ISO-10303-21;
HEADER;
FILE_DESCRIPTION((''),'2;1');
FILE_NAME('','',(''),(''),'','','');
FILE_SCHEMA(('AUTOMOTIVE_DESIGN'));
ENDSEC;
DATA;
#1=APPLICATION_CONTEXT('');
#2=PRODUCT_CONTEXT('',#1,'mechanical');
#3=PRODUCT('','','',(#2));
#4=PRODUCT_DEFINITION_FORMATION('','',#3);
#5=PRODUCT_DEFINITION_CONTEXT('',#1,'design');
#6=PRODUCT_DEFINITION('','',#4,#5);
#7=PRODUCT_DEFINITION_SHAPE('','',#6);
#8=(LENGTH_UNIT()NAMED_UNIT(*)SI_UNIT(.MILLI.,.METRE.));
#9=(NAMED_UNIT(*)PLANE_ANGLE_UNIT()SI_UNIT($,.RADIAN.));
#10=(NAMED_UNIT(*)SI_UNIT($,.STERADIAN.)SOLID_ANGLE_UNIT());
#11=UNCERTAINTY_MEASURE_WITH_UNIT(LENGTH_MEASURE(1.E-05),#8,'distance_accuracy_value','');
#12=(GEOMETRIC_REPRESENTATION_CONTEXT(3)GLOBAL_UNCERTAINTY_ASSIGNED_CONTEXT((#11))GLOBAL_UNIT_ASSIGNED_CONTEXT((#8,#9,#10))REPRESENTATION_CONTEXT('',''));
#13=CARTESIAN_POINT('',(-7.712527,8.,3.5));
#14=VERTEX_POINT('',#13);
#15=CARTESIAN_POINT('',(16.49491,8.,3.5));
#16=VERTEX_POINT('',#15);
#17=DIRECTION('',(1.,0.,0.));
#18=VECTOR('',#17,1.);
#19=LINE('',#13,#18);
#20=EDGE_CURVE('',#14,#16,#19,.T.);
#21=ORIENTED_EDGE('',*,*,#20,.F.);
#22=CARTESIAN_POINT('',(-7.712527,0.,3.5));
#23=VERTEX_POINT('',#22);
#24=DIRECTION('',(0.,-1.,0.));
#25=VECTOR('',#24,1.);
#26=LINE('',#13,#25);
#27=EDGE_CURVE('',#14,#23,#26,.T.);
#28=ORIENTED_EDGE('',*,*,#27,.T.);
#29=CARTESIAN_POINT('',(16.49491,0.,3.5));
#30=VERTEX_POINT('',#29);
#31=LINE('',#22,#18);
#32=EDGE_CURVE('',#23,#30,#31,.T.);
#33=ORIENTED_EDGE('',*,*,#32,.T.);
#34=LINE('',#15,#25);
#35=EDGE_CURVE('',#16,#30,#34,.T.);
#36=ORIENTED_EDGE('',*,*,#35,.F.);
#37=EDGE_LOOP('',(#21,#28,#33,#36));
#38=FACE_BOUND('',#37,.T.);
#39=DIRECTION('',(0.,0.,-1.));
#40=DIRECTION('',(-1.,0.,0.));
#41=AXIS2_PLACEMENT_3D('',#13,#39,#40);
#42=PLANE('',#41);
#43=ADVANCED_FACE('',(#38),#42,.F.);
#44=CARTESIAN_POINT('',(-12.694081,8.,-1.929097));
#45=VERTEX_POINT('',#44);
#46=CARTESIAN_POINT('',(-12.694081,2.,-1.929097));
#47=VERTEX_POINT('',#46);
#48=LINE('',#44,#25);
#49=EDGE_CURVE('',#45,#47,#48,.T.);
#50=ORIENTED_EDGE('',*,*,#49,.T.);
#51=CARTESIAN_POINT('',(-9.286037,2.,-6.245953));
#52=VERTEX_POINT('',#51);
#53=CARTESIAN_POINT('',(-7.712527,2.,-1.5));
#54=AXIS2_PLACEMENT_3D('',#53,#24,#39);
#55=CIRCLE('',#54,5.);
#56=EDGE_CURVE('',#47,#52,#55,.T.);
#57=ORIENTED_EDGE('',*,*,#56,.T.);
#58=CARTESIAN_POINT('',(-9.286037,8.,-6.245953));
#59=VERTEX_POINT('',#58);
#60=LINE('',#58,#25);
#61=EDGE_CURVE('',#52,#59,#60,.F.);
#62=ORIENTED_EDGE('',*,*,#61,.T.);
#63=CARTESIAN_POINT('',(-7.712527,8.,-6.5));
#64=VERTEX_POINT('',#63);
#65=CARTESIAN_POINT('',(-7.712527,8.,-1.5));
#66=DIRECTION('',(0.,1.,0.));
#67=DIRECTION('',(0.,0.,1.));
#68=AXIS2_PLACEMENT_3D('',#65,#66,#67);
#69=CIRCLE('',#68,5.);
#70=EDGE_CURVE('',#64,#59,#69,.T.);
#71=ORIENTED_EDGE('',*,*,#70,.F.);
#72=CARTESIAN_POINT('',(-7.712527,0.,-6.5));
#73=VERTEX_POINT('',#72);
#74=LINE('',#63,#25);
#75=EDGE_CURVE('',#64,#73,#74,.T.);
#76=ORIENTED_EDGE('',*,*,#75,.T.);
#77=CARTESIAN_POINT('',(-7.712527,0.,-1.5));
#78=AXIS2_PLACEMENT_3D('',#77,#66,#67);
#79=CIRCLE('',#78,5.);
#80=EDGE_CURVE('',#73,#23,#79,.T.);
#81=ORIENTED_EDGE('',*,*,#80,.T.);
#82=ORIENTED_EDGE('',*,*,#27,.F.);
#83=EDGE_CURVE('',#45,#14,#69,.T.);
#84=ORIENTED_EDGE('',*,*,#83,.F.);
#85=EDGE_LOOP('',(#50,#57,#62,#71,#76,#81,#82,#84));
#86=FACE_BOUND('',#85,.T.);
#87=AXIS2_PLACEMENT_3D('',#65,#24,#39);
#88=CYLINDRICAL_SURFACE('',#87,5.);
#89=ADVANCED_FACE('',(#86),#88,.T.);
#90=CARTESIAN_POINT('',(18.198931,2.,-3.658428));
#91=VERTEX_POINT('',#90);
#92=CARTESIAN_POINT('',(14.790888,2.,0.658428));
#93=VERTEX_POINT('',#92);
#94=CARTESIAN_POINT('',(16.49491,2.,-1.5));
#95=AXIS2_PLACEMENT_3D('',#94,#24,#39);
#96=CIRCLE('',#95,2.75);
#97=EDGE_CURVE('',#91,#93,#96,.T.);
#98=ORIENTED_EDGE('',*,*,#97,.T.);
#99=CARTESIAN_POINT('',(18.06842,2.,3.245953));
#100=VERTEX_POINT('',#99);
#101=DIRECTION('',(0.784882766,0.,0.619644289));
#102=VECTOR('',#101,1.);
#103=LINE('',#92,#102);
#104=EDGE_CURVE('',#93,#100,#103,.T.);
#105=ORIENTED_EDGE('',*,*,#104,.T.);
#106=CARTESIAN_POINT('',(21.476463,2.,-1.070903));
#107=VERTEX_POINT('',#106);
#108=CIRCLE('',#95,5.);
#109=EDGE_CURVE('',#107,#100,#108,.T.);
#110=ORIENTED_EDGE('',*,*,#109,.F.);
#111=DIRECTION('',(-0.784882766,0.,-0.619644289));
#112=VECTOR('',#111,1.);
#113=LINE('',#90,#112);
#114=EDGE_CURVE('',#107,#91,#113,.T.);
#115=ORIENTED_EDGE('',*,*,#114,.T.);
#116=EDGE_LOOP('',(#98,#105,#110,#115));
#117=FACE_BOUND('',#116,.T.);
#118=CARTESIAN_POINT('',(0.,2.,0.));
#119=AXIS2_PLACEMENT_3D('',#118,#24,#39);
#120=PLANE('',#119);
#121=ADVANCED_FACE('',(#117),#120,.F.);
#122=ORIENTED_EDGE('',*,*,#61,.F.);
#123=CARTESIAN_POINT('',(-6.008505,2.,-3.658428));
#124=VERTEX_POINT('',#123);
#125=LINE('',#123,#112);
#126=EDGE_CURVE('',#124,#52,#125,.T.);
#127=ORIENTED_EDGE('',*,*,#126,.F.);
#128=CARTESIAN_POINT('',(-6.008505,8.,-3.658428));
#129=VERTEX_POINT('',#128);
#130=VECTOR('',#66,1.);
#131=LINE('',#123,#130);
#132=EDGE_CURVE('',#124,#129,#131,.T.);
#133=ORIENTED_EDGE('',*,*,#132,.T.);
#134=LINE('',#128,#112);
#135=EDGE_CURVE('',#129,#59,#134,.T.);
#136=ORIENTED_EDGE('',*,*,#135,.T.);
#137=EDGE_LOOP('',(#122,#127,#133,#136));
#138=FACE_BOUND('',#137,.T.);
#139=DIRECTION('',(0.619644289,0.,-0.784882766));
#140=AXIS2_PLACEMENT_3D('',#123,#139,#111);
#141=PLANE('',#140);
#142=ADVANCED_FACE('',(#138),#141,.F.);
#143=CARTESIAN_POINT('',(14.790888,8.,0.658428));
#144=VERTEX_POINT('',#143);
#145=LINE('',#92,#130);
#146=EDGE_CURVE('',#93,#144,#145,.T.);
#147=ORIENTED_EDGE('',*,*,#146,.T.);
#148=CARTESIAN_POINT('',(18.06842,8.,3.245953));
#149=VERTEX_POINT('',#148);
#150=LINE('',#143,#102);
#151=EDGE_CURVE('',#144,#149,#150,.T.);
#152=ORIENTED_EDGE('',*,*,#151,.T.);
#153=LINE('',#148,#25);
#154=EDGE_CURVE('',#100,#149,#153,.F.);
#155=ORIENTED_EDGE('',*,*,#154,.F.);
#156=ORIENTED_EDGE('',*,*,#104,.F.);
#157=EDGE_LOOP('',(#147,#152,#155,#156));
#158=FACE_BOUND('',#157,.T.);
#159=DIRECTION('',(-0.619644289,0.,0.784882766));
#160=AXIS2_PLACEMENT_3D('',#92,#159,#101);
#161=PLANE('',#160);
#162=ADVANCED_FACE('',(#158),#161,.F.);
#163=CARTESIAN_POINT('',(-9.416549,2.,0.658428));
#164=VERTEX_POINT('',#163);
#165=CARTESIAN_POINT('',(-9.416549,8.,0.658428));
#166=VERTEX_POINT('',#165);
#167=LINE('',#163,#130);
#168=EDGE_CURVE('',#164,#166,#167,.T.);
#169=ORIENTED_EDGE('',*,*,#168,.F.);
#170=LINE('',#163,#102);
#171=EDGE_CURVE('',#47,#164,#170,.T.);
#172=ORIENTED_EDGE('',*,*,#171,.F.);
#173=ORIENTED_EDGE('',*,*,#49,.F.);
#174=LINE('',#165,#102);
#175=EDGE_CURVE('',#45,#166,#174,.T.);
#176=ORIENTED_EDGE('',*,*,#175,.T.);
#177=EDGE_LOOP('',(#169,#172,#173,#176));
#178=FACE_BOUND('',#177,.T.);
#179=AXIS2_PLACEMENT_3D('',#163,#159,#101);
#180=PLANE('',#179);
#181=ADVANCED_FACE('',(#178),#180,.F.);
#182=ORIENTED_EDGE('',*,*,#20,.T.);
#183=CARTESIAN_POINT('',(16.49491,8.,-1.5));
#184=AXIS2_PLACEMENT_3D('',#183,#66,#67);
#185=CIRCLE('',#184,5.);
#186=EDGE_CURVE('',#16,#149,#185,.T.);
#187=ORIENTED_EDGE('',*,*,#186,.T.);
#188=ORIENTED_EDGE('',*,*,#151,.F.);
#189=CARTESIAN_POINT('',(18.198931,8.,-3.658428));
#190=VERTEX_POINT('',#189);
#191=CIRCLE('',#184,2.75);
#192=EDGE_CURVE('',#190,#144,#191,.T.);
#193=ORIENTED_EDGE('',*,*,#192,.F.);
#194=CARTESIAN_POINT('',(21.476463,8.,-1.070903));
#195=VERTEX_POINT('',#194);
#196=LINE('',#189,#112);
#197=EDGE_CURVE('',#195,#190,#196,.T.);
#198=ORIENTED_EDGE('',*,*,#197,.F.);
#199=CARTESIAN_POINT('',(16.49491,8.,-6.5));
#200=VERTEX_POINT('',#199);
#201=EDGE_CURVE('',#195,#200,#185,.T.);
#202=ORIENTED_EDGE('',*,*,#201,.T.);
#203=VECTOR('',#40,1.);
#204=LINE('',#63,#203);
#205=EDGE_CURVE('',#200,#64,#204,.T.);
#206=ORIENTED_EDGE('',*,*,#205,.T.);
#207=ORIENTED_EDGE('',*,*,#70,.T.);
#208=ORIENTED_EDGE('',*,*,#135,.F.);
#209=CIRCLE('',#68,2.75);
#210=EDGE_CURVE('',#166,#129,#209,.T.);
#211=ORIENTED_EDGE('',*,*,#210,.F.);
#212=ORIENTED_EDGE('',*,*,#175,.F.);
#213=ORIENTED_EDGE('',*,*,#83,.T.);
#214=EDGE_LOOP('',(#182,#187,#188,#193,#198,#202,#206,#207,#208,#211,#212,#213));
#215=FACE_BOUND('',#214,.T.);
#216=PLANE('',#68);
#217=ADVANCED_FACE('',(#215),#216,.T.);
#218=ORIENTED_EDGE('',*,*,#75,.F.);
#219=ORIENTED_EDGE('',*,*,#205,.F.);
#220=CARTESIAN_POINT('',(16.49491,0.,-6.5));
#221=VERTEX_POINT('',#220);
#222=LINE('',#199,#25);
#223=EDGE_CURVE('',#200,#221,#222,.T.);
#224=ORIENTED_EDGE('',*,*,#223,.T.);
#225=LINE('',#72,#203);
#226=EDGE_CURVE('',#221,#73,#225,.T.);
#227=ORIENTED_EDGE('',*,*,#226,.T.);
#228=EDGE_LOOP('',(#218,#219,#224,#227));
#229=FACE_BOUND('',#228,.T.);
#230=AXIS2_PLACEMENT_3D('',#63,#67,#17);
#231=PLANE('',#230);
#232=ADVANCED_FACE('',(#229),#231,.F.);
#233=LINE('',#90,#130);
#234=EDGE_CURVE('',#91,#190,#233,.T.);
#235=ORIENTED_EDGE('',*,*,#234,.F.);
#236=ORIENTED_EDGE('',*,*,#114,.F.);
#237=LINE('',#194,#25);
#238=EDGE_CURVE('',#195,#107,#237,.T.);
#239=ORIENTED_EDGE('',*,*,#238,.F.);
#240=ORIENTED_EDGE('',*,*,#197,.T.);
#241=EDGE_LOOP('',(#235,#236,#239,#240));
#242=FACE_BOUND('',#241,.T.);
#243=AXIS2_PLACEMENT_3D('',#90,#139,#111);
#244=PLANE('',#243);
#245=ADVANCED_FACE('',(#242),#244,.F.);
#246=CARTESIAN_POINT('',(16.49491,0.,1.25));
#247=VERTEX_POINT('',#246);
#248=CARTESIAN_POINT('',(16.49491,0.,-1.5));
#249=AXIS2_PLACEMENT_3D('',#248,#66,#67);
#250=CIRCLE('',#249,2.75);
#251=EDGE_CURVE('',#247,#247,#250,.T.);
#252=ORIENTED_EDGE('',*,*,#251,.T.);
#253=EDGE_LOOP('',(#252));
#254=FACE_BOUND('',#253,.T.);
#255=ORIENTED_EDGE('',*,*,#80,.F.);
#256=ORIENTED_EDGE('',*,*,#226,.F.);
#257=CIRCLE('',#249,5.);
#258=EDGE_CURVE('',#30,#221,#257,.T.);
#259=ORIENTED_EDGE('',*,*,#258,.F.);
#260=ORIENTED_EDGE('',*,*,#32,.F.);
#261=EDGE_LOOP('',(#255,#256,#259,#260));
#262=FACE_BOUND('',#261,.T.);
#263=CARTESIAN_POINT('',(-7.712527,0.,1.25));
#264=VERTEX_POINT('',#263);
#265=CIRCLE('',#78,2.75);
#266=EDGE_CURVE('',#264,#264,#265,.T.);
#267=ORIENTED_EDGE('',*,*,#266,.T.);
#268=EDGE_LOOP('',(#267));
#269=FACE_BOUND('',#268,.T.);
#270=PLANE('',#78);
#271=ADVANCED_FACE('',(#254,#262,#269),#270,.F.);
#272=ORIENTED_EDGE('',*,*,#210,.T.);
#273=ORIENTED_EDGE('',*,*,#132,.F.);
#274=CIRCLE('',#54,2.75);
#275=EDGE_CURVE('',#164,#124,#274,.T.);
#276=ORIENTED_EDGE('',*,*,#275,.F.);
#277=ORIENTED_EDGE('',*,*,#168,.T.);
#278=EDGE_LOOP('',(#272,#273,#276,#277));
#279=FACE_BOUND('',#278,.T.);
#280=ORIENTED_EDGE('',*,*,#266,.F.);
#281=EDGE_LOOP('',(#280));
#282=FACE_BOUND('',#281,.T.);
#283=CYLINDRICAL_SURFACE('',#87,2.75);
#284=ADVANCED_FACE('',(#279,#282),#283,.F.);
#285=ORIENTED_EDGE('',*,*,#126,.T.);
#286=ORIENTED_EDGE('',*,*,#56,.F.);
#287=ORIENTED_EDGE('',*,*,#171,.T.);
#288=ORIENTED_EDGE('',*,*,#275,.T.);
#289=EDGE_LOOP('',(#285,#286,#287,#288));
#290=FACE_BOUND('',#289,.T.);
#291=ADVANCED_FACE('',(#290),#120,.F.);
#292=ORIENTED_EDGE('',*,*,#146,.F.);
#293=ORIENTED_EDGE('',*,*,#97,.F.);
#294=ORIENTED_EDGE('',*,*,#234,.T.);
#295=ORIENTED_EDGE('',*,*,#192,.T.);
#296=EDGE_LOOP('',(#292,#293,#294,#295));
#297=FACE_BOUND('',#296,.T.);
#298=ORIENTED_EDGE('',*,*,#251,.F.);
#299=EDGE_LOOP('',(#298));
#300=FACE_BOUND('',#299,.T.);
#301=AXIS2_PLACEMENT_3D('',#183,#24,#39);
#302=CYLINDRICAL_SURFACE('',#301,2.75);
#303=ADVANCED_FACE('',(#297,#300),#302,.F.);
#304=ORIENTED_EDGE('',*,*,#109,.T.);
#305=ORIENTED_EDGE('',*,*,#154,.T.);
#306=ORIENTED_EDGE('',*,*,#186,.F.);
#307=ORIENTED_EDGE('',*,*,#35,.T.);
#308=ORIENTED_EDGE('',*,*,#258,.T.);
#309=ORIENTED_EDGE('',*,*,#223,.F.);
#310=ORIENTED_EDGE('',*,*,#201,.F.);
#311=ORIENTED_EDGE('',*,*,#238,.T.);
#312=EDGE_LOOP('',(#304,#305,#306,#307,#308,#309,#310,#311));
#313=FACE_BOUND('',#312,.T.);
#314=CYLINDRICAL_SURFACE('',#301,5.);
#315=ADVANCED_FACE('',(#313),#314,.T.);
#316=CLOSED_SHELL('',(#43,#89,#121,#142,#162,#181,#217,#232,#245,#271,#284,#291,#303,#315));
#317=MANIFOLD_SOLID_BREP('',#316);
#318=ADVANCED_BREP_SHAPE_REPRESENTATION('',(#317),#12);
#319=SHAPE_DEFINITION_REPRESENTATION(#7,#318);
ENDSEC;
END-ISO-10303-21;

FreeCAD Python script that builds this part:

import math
import FreeCAD as App
import Part
import Sketcher


def add_polygon(sketch, points):
    """Adds a closed chain of lines whose ends are joined by coincident constraints."""
    first, n = sketch.GeometryCount, len(points)
    for a, b in zip(points, points[1:] + points[:1]):
        sketch.addGeometry(Part.LineSegment(App.Vector(*a, 0), App.Vector(*b, 0)), False)
    for i in range(n):
        sketch.addConstraint(Sketcher.Constraint("Coincident", first + i, 2, first + (i + 1) % n, 1))

doc = App.newDocument("Part")
body = doc.addObject("PartDesign::Body", "Body")

# Sketch on XZ plane
sketch1 = body.newObject("Sketcher::SketchObject", "Sketch")
sketch1.AttachmentSupport = (doc.getObject("XZ_Plane"), [""])
sketch1.MapMode = "FlatFace"
sketch1.addGeometry([
    Part.LineSegment(App.Vector(16.5, -6.5, 0), App.Vector(-7.7, -6.5, 0)),  # 0
    Part.ArcOfCircle(Part.Circle(App.Vector(-7.7, -1.5, 0), App.Vector(0, 0, 1), 5), math.radians(90), math.radians(270)),  # 1
    Part.LineSegment(App.Vector(-7.7, 3.5, 0), App.Vector(16.5, 3.5, 0)),  # 2
    Part.ArcOfCircle(Part.Circle(App.Vector(16.5, -1.5, 0), App.Vector(0, 0, 1), 5), math.radians(-90), math.radians(90)),  # 3
    Part.Circle(App.Vector(16.5, -1.5, 0), App.Vector(0, 0, 1), 2.8),  # 4
    Part.Circle(App.Vector(-7.7, -1.5, 0), App.Vector(0, 0, 1), 2.8),  # 5
], False)
sketch1.addConstraint([
    Sketcher.Constraint("Tangent", 0, 2, 1, 2),
    Sketcher.Constraint("Tangent", 1, 1, 2, 1),
    Sketcher.Constraint("Tangent", 2, 2, 3, 2),
    Sketcher.Constraint("Tangent", 3, 1, 0, 1),
    Sketcher.Constraint("Horizontal", 0),
    Sketcher.Constraint("Horizontal", 2),
    Sketcher.Constraint("Coincident", 4, 3, 3, 3),
    Sketcher.Constraint("Coincident", 5, 3, 1, 3),
    Sketcher.Constraint("Equal", 4, 5),
    Sketcher.Constraint("Radius", 1, 5.0),
    Sketcher.Constraint("Diameter", 4, 5.5),
    Sketcher.Constraint("DistanceY", 1, 3, -1, 1, 1.5),
    Sketcher.Constraint("DistanceX", 0, 2, 0, 1, 24.207437),
    Sketcher.Constraint("DistanceX", -1, 1, 3, 3, 16.49491),
])
pad1 = body.newObject("PartDesign::Pad", "Pad")
pad1.Profile = sketch1
pad1.Length = 8
pad1.Reversed = True

# Sketch on XZ plane
sketch2 = body.newObject("Sketcher::SketchObject", "Sketch001")
sketch2.AttachmentSupport = (doc.getObject("XZ_Plane"), [""])
sketch2.MapMode = "FlatFace"
sketch2.AttachmentOffset = App.Placement(App.Vector(0, 0, -8), App.Rotation())
add_polygon(sketch2, [(18, -4), (15, 1), (25, 8), (28, 4)])  # lines 0-3
add_polygon(sketch2, [(-9, 1), (-6, -4), (-16, -11), (-19, -7)])  # lines 4-7
sketch2.addConstraint([
    Sketcher.Constraint("Perpendicular", 0, 1),
    Sketcher.Constraint("Perpendicular", 1, 2),
    Sketcher.Constraint("Perpendicular", 2, 3),
    Sketcher.Constraint("Perpendicular", 3, 4),
    Sketcher.Constraint("Perpendicular", 4, 5),
    Sketcher.Constraint("Perpendicular", 5, 6),
    Sketcher.Constraint("Perpendicular", 6, 7),
    Sketcher.Constraint("Horizontal", 3, 2, 4, 2),
    Sketcher.Constraint("Horizontal", 0, 2, 7, 2),
    Sketcher.Constraint("Equal", 3, 5),
    Sketcher.Constraint("Distance", 0, 5.5),
    Sketcher.Constraint("DistanceY", 3, 2, 1, 2, 12.157),
    Sketcher.Constraint("DistanceX", 6, 2, -1, 1, 19.347399),
    Sketcher.Constraint("DistanceX", -1, 1, 2, 2, 28.129782),
    Sketcher.Constraint("DistanceX", -1, 1, 3, 2, 18.198931),
    Sketcher.Constraint("DistanceY", -1, 1, 0, 2, 0.658428),
])
pocket1 = body.newObject("PartDesign::Pocket", "Pocket")
pocket1.Profile = sketch2
pocket1.Length = 6
pocket1.Reversed = True

doc.recompute()
